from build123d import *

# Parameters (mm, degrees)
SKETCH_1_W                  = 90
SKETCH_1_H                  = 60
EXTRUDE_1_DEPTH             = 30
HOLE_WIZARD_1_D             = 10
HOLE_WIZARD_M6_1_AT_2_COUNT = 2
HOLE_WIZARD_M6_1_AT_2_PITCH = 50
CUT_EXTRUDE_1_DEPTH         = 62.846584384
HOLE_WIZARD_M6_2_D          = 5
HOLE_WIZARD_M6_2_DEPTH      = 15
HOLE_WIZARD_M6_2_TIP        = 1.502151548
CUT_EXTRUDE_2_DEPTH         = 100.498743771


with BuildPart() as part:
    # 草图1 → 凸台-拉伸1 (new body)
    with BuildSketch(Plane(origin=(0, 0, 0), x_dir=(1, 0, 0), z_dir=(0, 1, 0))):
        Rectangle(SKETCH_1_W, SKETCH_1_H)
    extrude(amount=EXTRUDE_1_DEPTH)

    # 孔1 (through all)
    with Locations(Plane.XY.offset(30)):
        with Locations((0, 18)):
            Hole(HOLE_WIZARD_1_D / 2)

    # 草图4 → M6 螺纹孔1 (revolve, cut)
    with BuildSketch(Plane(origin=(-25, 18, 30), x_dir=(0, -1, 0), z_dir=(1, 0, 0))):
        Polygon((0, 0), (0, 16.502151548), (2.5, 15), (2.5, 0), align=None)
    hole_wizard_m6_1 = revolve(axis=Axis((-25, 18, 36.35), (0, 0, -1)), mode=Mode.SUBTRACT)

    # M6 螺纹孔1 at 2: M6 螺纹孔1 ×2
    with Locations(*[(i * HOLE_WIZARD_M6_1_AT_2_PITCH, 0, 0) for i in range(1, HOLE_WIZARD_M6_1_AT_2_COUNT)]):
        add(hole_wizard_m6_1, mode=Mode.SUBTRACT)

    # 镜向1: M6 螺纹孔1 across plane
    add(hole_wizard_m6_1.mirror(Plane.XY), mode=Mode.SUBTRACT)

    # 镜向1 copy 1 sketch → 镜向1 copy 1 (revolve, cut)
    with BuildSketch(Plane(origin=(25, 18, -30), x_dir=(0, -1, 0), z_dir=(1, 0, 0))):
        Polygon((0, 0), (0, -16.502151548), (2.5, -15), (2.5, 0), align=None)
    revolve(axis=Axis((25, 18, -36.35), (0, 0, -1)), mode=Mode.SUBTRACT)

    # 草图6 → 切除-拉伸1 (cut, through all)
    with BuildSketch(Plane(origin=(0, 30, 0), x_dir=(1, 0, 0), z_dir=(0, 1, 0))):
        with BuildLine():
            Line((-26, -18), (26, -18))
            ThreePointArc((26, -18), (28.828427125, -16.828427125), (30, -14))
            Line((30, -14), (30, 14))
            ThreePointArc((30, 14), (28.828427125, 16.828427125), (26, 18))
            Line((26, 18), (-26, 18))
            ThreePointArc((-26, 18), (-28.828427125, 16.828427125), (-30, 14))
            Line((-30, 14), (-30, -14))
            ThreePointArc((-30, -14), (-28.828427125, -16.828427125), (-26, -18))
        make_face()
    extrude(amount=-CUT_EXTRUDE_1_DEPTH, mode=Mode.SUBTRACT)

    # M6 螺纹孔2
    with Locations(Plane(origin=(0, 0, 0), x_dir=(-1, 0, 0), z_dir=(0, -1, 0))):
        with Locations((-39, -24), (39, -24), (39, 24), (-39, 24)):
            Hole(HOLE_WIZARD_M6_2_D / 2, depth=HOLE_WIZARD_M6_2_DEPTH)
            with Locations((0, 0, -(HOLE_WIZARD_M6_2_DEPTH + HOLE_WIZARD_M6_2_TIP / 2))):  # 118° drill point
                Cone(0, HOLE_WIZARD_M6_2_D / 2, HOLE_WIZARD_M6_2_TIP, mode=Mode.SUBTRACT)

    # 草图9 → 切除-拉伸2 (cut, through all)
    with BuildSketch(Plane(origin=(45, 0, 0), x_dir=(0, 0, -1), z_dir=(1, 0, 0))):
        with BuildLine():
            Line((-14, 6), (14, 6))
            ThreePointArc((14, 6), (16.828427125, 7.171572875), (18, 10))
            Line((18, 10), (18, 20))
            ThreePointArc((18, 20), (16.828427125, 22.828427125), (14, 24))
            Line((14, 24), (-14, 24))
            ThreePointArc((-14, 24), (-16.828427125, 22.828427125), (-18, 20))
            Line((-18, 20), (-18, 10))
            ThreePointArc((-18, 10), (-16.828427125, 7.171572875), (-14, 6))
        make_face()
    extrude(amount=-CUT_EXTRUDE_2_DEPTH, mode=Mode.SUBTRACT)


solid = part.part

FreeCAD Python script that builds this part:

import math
import FreeCAD as App
import Part
import Sketcher
from FreeCAD import Vector
Q = App.Units.Quantity

doc = App.newDocument("Part")
params = doc.addObject("Spreadsheet::Sheet", "Params")
for row, (alias, value) in enumerate([
    ("sketch1_width", "90 mm"),
    ("sketch1_height", "60 mm"),
    ("pad1_length", "30 mm"),
    ("sketch2_diameter", "10 mm"),
    ("hole_diameter", "10 mm"),
    ("sketch3_height", "15 mm"),
    ("sketch3_width", "2.5 mm"),
    ("groove_angle", "360 deg"),
    ("linearpattern_pitch", "50 mm"),
    ("sketch4_height", "15 mm"),
    ("sketch4_width", "2.5 mm"),
    ("groove2_angle", "360 deg"),
    ("sketch5_radius", "4 mm"),
    ("sketch5_width", "52 mm"),
    ("sketch5_height", "28 mm"),
    ("sketch6_diameter", "5 mm"),
    ("hole2_diameter", "5 mm"),
    ("hole2_depth", "15 mm"),
    ("sketch7_radius", "4 mm"),
    ("sketch7_width", "10 mm"),
    ("sketch7_height", "28 mm"),
], start=1):
    params.set(f"A{row}", alias)
    params.set(f"B{row}", "=" + value)
    params.setAlias(f"B{row}", alias)

body = doc.addObject("PartDesign::Body", "Body")

sketch1 = body.newObject("Sketcher::SketchObject", "Sketch")
sketch1.AttachmentSupport = (doc.getObject("XZ_Plane"), [""])
sketch1.MapMode = "FlatFace"
sketch1.addGeometry(Part.LineSegment(Vector(-45, -30, 0), Vector(-45, 30, 0)), False)
sketch1.addGeometry(Part.LineSegment(Vector(-45, 30, 0), Vector(45, 30, 0)), False)
sketch1.addGeometry(Part.LineSegment(Vector(45, 30, 0), Vector(45, -30, 0)), False)
sketch1.addGeometry(Part.LineSegment(Vector(45, -30, 0), Vector(-45, -30, 0)), False)
sketch1.addConstraint(Sketcher.Constraint("Coincident", 0, 2, 1, 1))
sketch1.addConstraint(Sketcher.Constraint("Coincident", 1, 2, 2, 1))
sketch1.addConstraint(Sketcher.Constraint("Coincident", 2, 2, 3, 1))
sketch1.addConstraint(Sketcher.Constraint("Coincident", 3, 2, 0, 1))
sketch1.addConstraint(Sketcher.Constraint("Vertical", 0))
sketch1.addConstraint(Sketcher.Constraint("Horizontal", 1))
sketch1.addConstraint(Sketcher.Constraint("Vertical", 2))
sketch1.addConstraint(Sketcher.Constraint("Horizontal", 3))
sketch1.addConstraint(Sketcher.Constraint("Symmetric", 0, 2, 2, 2, -1, 1))
sketch1.addConstraint(Sketcher.Constraint("DistanceX", 1, 1, 1, 2, 90.0))
sketch1.addConstraint(Sketcher.Constraint("DistanceY", 0, 1, 0, 2, 60.0))
sketch1.setExpression("Constraints[9]", "Params.sketch1_width")
sketch1.setExpression("Constraints[10]", "Params.sketch1_height")
pad1 = body.newObject("PartDesign::Pad", "Pad")
pad1.Profile = sketch1
pad1.setExpression("Length", "Params.pad1_length")
pad1.Reversed = True

sketch2 = body.newObject("Sketcher::SketchObject", "Sketch001")
sketch2.AttachmentSupport = (doc.getObject("XY_Plane"), [""])
sketch2.MapMode = "FlatFace"
sketch2.AttachmentOffset = App.Placement(Vector(0, 0, 30), App.Rotation())
sketch2.addGeometry(Part.Circle(Vector(0, 18, 0), Vector(0, 0, 1), 5), False)
sketch2.addConstraint(Sketcher.Constraint("PointOnObject", 0, 3, -2))
sketch2.addConstraint(Sketcher.Constraint("Diameter", 0, 10.0))
sketch2.addConstraint(Sketcher.Constraint("DistanceY", -1, 1, 0, 3, 18.0))
sketch2.setExpression("Constraints[1]", "Params.sketch2_diameter")
doc.recompute()
hole = body.newObject("PartDesign::Hole", "Hole")
hole.Profile = sketch2
hole.ThreadType = "None"
hole.setExpression("Diameter", "Params.hole_diameter")
hole.DepthType = "ThroughAll"

sketch3 = body.newObject("Sketcher::SketchObject", "Sketch002")
sketch3.AttachmentSupport = (doc.getObject("YZ_Plane"), [""])
sketch3.MapMode = "FlatFace"
sketch3.AttachmentOffset = App.Placement(Vector(0, 0, -25), App.Rotation())
sketch3.addGeometry(Part.LineSegment(Vector(18, 13.5, 0), Vector(18, 30, 0)), False)
sketch3.addGeometry(Part.LineSegment(Vector(18, 30, 0), Vector(15.5, 30, 0)), False)
sketch3.addGeometry(Part.LineSegment(Vector(15.5, 30, 0), Vector(15.5, 15, 0)), False)
sketch3.addGeometry(Part.LineSegment(Vector(15.5, 15, 0), Vector(18, 13.5, 0)), False)
sketch3.addGeometry(Part.LineSegment(Vector(18, 30, 0), Vector(18, 13.5, 0)), True)
sketch3.addConstraint(Sketcher.Constraint("Coincident", 0, 2, 1, 1))
sketch3.addConstraint(Sketcher.Constraint("Coincident", 1, 2, 2, 1))
sketch3.addConstraint(Sketcher.Constraint("Coincident", 2, 2, 3, 1))
sketch3.addConstraint(Sketcher.Constraint("Coincident", 3, 2, 0, 1))
sketch3.addConstraint(Sketcher.Constraint("Vertical", 0))
sketch3.addConstraint(Sketcher.Constraint("Horizontal", 1))
sketch3.addConstraint(Sketcher.Constraint("Vertical", 2))
sketch3.addConstraint(Sketcher.Constraint("Vertical", 4))
sketch3.addConstraint(Sketcher.Constraint("Coincident", 4, 1, 0, 2))
sketch3.addConstraint(Sketcher.Constraint("Equal", 0, 4))
sketch3.addConstraint(Sketcher.Constraint("DistanceY", 2, 2, 2, 1, 15.0))
sketch3.addConstraint(Sketcher.Constraint("Angle", 3, Q("-31 deg")))
sketch3.addConstraint(Sketcher.Constraint("DistanceX", 1, 2, 1, 1, 2.5))
sketch3.addConstraint(Sketcher.Constraint("DistanceX", -1, 1, 0, 2, 18.0))
sketch3.addConstraint(Sketcher.Constraint("DistanceY", -1, 1, 0, 2, 30.0))
sketch3.setExpression("Constraints[10]", "Params.sketch3_height")
sketch3.setExpression("Constraints[12]", "Params.sketch3_width")
groove = body.newObject("PartDesign::Groove", "Groove")
groove.Profile = sketch3
groove.ReferenceAxis = (sketch3, ["Axis0"])
groove.setExpression("Angle", "Params.groove_angle")
doc.recompute()

linearpattern = body.newObject("PartDesign::LinearPattern", "LinearPattern")
linearpattern.Originals = [groove]
linearpattern.Direction = (doc.getObject("X_Axis"), [""])
linearpattern.Mode = "offset"
linearpattern.setExpression("Offset", "Params.linearpattern_pitch")
linearpattern.Occurrences = 2
body.Tip = linearpattern
doc.recompute()

mirrored = body.newObject("PartDesign::Mirrored", "Mirrored")
mirrored.Originals = [groove]
mirrored.MirrorPlane = (doc.getObject("XY_Plane"), [""])
body.Tip = mirrored

sketch4 = body.newObject("Sketcher::SketchObject", "Sketch003")
sketch4.AttachmentSupport = (doc.getObject("YZ_Plane"), [""])
sketch4.MapMode = "FlatFace"
sketch4.AttachmentOffset = App.Placement(Vector(0, 0, 25), App.Rotation())
sketch4.addGeometry(Part.LineSegment(Vector(18, -30, 0), Vector(18, -13.5, 0)), False)
sketch4.addGeometry(Part.LineSegment(Vector(18, -13.5, 0), Vector(15.5, -15, 0)), False)
sketch4.addGeometry(Part.LineSegment(Vector(15.5, -15, 0), Vector(15.5, -30, 0)), False)
sketch4.addGeometry(Part.LineSegment(Vector(15.5, -30, 0), Vector(18, -30, 0)), False)
sketch4.addGeometry(Part.LineSegment(Vector(18, -13.5, 0), Vector(18, -30, 0)), True)
sketch4.addConstraint(Sketcher.Constraint("Coincident", 0, 2, 1, 1))
sketch4.addConstraint(Sketcher.Constraint("Coincident", 1, 2, 2, 1))
sketch4.addConstraint(Sketcher.Constraint("Coincident", 2, 2, 3, 1))
sketch4.addConstraint(Sketcher.Constraint("Coincident", 3, 2, 0, 1))
sketch4.addConstraint(Sketcher.Constraint("Vertical", 0))
sketch4.addConstraint(Sketcher.Constraint("Vertical", 2))
sketch4.addConstraint(Sketcher.Constraint("Horizontal", 3))
sketch4.addConstraint(Sketcher.Constraint("Vertical", 4))
sketch4.addConstraint(Sketcher.Constraint("Coincident", 4, 1, 0, 2))
sketch4.addConstraint(Sketcher.Constraint("Horizontal", 2, 2, 4, 2))
sketch4.addConstraint(Sketcher.Constraint("DistanceY", 2, 2, 2, 1, 15.0))
sketch4.addConstraint(Sketcher.Constraint("Angle", 1, Q("-149 deg")))
sketch4.addConstraint(Sketcher.Constraint("DistanceX", 3, 1, 3, 2, 2.5))
sketch4.addConstraint(Sketcher.Constraint("DistanceX", -1, 1, 0, 2, 18.0))
sketch4.addConstraint(Sketcher.Constraint("DistanceY", 1, 2, -1, 1, 15.0))
sketch4.setExpression("Constraints[10]", "Params.sketch4_height")
sketch4.setExpression("Constraints[12]", "Params.sketch4_width")
groove2 = body.newObject("PartDesign::Groove", "Groove001")
groove2.Profile = sketch4
groove2.ReferenceAxis = (sketch4, ["Axis0"])
groove2.setExpression("Angle", "Params.groove2_angle")

sketch5 = body.newObject("Sketcher::SketchObject", "Sketch004")
sketch5.AttachmentSupport = (doc.getObject("XZ_Plane"), [""])
sketch5.MapMode = "FlatFace"
sketch5.AttachmentOffset = App.Placement(Vector(0, 0, -30), App.Rotation())
sketch5.addGeometry(Part.LineSegment(Vector(-26, 18, 0), Vector(26, 18, 0)), False)
sketch5.addGeometry(Part.ArcOfCircle(Part.Circle(Vector(26, 14, 0), Vector(0, 0, 1), 4), math.radians(0), math.radians(90)), False)
sketch5.addGeometry(Part.LineSegment(Vector(30, 14, 0), Vector(30, -14, 0)), False)
sketch5.addGeometry(Part.ArcOfCircle(Part.Circle(Vector(26, -14, 0), Vector(0, 0, 1), 4), math.radians(-90), math.radians(0)), False)
sketch5.addGeometry(Part.LineSegment(Vector(26, -18, 0), Vector(-26, -18, 0)), False)
sketch5.addGeometry(Part.ArcOfCircle(Part.Circle(Vector(-26, -14, 0), Vector(0, 0, 1), 4), math.radians(180), math.radians(270)), False)
sketch5.addGeometry(Part.LineSegment(Vector(-30, -14, 0), Vector(-30, 14, 0)), False)
sketch5.addGeometry(Part.ArcOfCircle(Part.Circle(Vector(-26, 14, 0), Vector(0, 0, 1), 4), math.radians(90), math.radians(180)), False)
sketch5.addConstraint(Sketcher.Constraint("Tangent", 0, 2, 1, 2))
sketch5.addConstraint(Sketcher.Constraint("Tangent", 1, 1, 2, 1))
sketch5.addConstraint(Sketcher.Constraint("Tangent", 2, 2, 3, 2))
sketch5.addConstraint(Sketcher.Constraint("Tangent", 3, 1, 4, 1))
sketch5.addConstraint(Sketcher.Constraint("Tangent", 4, 2, 5, 2))
sketch5.addConstraint(Sketcher.Constraint("Tangent", 5, 1, 6, 1))
sketch5.addConstraint(Sketcher.Constraint("Tangent", 6, 2, 7, 2))
sketch5.addConstraint(Sketcher.Constraint("Tangent", 7, 1, 0, 1))
sketch5.addConstraint(Sketcher.Constraint("Horizontal", 0))
sketch5.addConstraint(Sketcher.Constraint("Vertical", 2))
sketch5.addConstraint(Sketcher.Constraint("Horizontal", 4))
sketch5.addConstraint(Sketcher.Constraint("Vertical", 6))
sketch5.addConstraint(Sketcher.Constraint("Equal", 1, 3))
sketch5.addConstraint(Sketcher.Constraint("Equal", 3, 5))
sketch5.addConstraint(Sketcher.Constraint("Equal", 5, 7))
sketch5.addConstraint(Sketcher.Constraint("Symmetric", 1, 3, 5, 3, -1, 1))
sketch5.addConstraint(Sketcher.Constraint("Radius", 1, 4.0))
sketch5.addConstraint(Sketcher.Constraint("DistanceX", 0, 1, 0, 2, 52.0))
sketch5.addConstraint(Sketcher.Constraint("DistanceY", 2, 2, 2, 1, 28.0))
sketch5.setExpression("Constraints[16]", "Params.sketch5_radius")
sketch5.setExpression("Constraints[17]", "Params.sketch5_width")
sketch5.setExpression("Constraints[18]", "Params.sketch5_height")
pocket1 = body.newObject("PartDesign::Pocket", "Pocket")
pocket1.Profile = sketch5
pocket1.Type = "ThroughAll"
pocket1.Reversed = True

sketch6 = body.newObject("Sketcher::SketchObject", "Sketch005")
sketch6.AttachmentSupport = (doc.getObject("XZ_Plane"), [""])
sketch6.MapMode = "FlatFace"
sketch6.addGeometry(Part.Circle(Vector(39, 24, 0), Vector(0, 0, 1), 2.5), False)
sketch6.addGeometry(Part.Circle(Vector(-39, 24, 0), Vector(0, 0, 1), 2.5), False)
sketch6.addGeometry(Part.Circle(Vector(-39, -24, 0), Vector(0, 0, 1), 2.5), False)
sketch6.addGeometry(Part.Circle(Vector(39, -24, 0), Vector(0, 0, 1), 2.5), False)
sketch6.addConstraint(Sketcher.Constraint("Equal", 0, 1))
sketch6.addConstraint(Sketcher.Constraint("Equal", 1, 2))
sketch6.addConstraint(Sketcher.Constraint("Equal", 2, 3))
sketch6.addConstraint(Sketcher.Constraint("Symmetric", 0, 3, 2, 3, -1, 1))
sketch6.addConstraint(Sketcher.Constraint("Symmetric", 1, 3, 3, 3, -1, 1))
sketch6.addConstraint(Sketcher.Constraint("Symmetric", 0, 3, 1, 3, -2))
sketch6.addConstraint(Sketcher.Constraint("Diameter", 0, 5.0))
sketch6.addConstraint(Sketcher.Constraint("DistanceX", -1, 1, 0, 3, 39.0))
sketch6.addConstraint(Sketcher.Constraint("DistanceY", -1, 1, 0, 3, 24.0))
sketch6.setExpression("Constraints[6]", "Params.sketch6_diameter")
doc.recompute()
hole2 = body.newObject("PartDesign::Hole", "Hole001")
hole2.Profile = sketch6
hole2.ThreadType = "None"
hole2.setExpression("Diameter", "Params.hole2_diameter")
hole2.DepthType = "Dimension"
hole2.setExpression("Depth", "Params.hole2_depth")
hole2.DrillPoint = "Angled"
hole2.DrillPointAngle = 118

sketch7 = body.newObject("Sketcher::SketchObject", "Sketch006")
sketch7.AttachmentSupport = (doc.getObject("YZ_Plane"), [""])
sketch7.MapMode = "FlatFace"
sketch7.AttachmentOffset = App.Placement(Vector(0, 0, 45), App.Rotation())
sketch7.addGeometry(Part.LineSegment(Vector(6, 14, 0), Vector(6, -14, 0)), False)
sketch7.addGeometry(Part.ArcOfCircle(Part.Circle(Vector(10, -14, 0), Vector(0, 0, 1), 4), math.radians(180), math.radians(270)), False)
sketch7.addGeometry(Part.LineSegment(Vector(10, -18, 0), Vector(20, -18, 0)), False)
sketch7.addGeometry(Part.ArcOfCircle(Part.Circle(Vector(20, -14, 0), Vector(0, 0, 1), 4), math.radians(-90), math.radians(0)), False)
sketch7.addGeometry(Part.LineSegment(Vector(24, -14, 0), Vector(24, 14, 0)), False)
sketch7.addGeometry(Part.ArcOfCircle(Part.Circle(Vector(20, 14, 0), Vector(0, 0, 1), 4), math.radians(0), math.radians(90)), False)
sketch7.addGeometry(Part.LineSegment(Vector(20, 18, 0), Vector(10, 18, 0)), False)
sketch7.addGeometry(Part.ArcOfCircle(Part.Circle(Vector(10, 14, 0), Vector(0, 0, 1), 4), math.radians(90), math.radians(180)), False)
sketch7.addConstraint(Sketcher.Constraint("Tangent", 0, 2, 1, 1))
sketch7.addConstraint(Sketcher.Constraint("Tangent", 1, 2, 2, 1))
sketch7.addConstraint(Sketcher.Constraint("Tangent", 2, 2, 3, 1))
sketch7.addConstraint(Sketcher.Constraint("Tangent", 3, 2, 4, 1))
sketch7.addConstraint(Sketcher.Constraint("Tangent", 4, 2, 5, 1))
sketch7.addConstraint(Sketcher.Constraint("Tangent", 5, 2, 6, 1))
sketch7.addConstraint(Sketcher.Constraint("Tangent", 6, 2, 7, 1))
sketch7.addConstraint(Sketcher.Constraint("Tangent", 7, 2, 0, 1))
sketch7.addConstraint(Sketcher.Constraint("Vertical", 0))
sketch7.addConstraint(Sketcher.Constraint("Horizontal", 2))
sketch7.addConstraint(Sketcher.Constraint("Vertical", 4))
sketch7.addConstraint(Sketcher.Constraint("Horizontal", 6))
sketch7.addConstraint(Sketcher.Constraint("Equal", 1, 3))
sketch7.addConstraint(Sketcher.Constraint("Equal", 3, 5))
sketch7.addConstraint(Sketcher.Constraint("Equal", 5, 7))
sketch7.addConstraint(Sketcher.Constraint("Radius", 1, 4.0))
sketch7.addConstraint(Sketcher.Constraint("DistanceX", 2, 1, 2, 2, 10.0))
sketch7.addConstraint(Sketcher.Constraint("DistanceY", 0, 2, 0, 1, 28.0))
sketch7.addConstraint(Sketcher.Constraint("DistanceX", -1, 1, 1, 3, 10.0))
sketch7.addConstraint(Sketcher.Constraint("DistanceY", 1, 3, -1, 1, 14.0))
sketch7.setExpression("Constraints[15]", "Params.sketch7_radius")
sketch7.setExpression("Constraints[16]", "Params.sketch7_width")
sketch7.setExpression("Constraints[17]", "Params.sketch7_height")
pocket2 = body.newObject("PartDesign::Pocket", "Pocket001")
pocket2.Profile = sketch7
pocket2.Type = "ThroughAll"

doc.recompute()
